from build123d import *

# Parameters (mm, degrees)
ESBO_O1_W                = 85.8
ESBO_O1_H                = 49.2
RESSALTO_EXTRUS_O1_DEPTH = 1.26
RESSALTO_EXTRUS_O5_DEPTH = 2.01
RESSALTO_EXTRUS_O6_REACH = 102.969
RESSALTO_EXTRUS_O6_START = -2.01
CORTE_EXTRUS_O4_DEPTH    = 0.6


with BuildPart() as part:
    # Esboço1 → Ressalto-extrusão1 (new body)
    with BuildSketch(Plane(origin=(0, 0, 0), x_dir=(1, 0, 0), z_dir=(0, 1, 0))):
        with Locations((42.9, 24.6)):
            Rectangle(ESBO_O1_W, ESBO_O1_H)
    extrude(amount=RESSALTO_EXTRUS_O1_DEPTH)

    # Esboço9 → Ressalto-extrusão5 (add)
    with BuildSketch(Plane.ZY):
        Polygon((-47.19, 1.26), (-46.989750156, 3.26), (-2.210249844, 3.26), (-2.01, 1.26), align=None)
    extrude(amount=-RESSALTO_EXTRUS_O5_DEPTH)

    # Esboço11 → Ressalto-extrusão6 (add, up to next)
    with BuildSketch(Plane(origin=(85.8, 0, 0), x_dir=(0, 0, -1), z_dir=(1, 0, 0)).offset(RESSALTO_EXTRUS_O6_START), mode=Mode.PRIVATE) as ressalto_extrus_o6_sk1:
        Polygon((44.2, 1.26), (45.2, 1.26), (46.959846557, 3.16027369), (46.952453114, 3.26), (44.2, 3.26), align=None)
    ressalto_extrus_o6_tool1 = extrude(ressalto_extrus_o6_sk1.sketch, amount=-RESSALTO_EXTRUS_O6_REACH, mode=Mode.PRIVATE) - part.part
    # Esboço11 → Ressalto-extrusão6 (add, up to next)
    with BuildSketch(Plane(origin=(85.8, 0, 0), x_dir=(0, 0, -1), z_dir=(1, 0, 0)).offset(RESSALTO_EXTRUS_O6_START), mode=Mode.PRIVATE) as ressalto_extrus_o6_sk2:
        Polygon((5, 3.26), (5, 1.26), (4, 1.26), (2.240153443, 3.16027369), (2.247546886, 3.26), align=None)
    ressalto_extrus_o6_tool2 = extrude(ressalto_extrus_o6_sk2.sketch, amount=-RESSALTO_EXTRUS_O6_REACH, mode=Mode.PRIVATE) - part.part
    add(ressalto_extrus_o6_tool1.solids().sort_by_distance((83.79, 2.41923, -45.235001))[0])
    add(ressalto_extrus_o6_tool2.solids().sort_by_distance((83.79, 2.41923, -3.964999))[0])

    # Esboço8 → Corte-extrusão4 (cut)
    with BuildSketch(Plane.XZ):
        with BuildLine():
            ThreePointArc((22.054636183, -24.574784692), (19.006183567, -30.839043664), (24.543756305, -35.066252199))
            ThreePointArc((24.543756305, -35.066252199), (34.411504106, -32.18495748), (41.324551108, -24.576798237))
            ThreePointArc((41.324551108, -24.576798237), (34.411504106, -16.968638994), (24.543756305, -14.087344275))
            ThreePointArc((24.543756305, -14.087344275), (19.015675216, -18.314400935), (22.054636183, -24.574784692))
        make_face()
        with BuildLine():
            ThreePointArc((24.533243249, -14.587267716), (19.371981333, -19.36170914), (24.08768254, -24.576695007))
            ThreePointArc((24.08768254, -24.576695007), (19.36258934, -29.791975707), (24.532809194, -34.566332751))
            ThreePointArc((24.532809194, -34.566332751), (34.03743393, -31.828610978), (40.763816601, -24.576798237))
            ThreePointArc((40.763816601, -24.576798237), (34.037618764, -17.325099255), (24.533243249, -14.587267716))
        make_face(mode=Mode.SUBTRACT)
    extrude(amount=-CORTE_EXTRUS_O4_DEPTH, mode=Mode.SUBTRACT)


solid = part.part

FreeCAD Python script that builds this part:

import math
import FreeCAD as App
import Part
import Sketcher
Q = App.Units.Quantity

doc = App.newDocument("Part")
body = doc.addObject("PartDesign::Body", "Body")

# Sketch on XZ plane
sketch1 = doc.addObject("Sketcher::SketchObject", "Sketch")
body.addObject(sketch1)
sketch1.AttachmentSupport = (doc.XZ_Plane, [""])
sketch1.MapMode = "FlatFace"
sketch1.addGeometry(Part.LineSegment(App.Vector(0, -49, 0), App.Vector(0, 0, 0)), False)
sketch1.addGeometry(Part.LineSegment(App.Vector(0, 0, 0), App.Vector(86, 0, 0)), False)
sketch1.addGeometry(Part.LineSegment(App.Vector(86, 0, 0), App.Vector(86, -49, 0)), False)
sketch1.addGeometry(Part.LineSegment(App.Vector(86, -49, 0), App.Vector(0, -49, 0)), False)
sketch1.addConstraint(Sketcher.Constraint("Coincident", 0, 2, 1, 1))
sketch1.addConstraint(Sketcher.Constraint("Coincident", 1, 2, 2, 1))
sketch1.addConstraint(Sketcher.Constraint("Coincident", 2, 2, 3, 1))
sketch1.addConstraint(Sketcher.Constraint("Coincident", 3, 2, 0, 1))
sketch1.addConstraint(Sketcher.Constraint("Vertical", 0))
sketch1.addConstraint(Sketcher.Constraint("Horizontal", 1))
sketch1.addConstraint(Sketcher.Constraint("Vertical", 2))
sketch1.addConstraint(Sketcher.Constraint("Horizontal", 3))
sketch1.addConstraint(Sketcher.Constraint("Coincident", 0, 2, -1, 1))
sketch1.addConstraint(Sketcher.Constraint("DistanceX", 1, 1, 1, 2, Q("85.8 mm")))
sketch1.addConstraint(Sketcher.Constraint("DistanceY", 0, 1, 0, 2, Q("49.2 mm")))
pad1 = doc.addObject("PartDesign::Pad", "Pad")
body.addObject(pad1)
pad1.Profile = sketch1
pad1.Length = 1.26
pad1.Reversed = True

# Sketch on YZ plane
sketch2 = doc.addObject("Sketcher::SketchObject", "Sketch001")
body.addObject(sketch2)
sketch2.AttachmentSupport = (doc.YZ_Plane, [""])
sketch2.MapMode = "FlatFace"
sketch2.addGeometry(Part.LineSegment(App.Vector(3.3, -47, 0), App.Vector(1.3, -47.2, 0)), False)
sketch2.addGeometry(Part.LineSegment(App.Vector(1.3, -47.2, 0), App.Vector(1.3, -2, 0)), False)
sketch2.addGeometry(Part.LineSegment(App.Vector(1.3, -2, 0), App.Vector(3.3, -2.2, 0)), False)
sketch2.addGeometry(Part.LineSegment(App.Vector(3.3, -2.2, 0), App.Vector(3.3, -47, 0)), False)
sketch2.addConstraint(Sketcher.Constraint("Coincident", 0, 2, 1, 1))
sketch2.addConstraint(Sketcher.Constraint("Coincident", 1, 2, 2, 1))
sketch2.addConstraint(Sketcher.Constraint("Coincident", 2, 2, 3, 1))
sketch2.addConstraint(Sketcher.Constraint("Coincident", 3, 2, 0, 1))
sketch2.addConstraint(Sketcher.Constraint("Vertical", 1))
sketch2.addConstraint(Sketcher.Constraint("Vertical", 3))
sketch2.addConstraint(Sketcher.Constraint("Equal", 0, 2))
sketch2.addConstraint(Sketcher.Constraint("DistanceX", 1, 2, 2, 2, Q("2 mm")))
sketch2.addConstraint(Sketcher.Constraint("DistanceY", 1, 1, 1, 2, Q("45.18 mm")))
sketch2.addConstraint(Sketcher.Constraint("Distance", 0, Q("2.01 mm")))
sketch2.addConstraint(Sketcher.Constraint("DistanceX", -1, 1, 0, 2, Q("1.26 mm")))
sketch2.addConstraint(Sketcher.Constraint("DistanceY", 0, 2, -1, 1, Q("47.19 mm")))
pad2 = doc.addObject("PartDesign::Pad", "Pad001")
body.addObject(pad2)
pad2.Profile = sketch2
pad2.Length = 2.01

# Sketch on YZ plane
sketch3 = doc.addObject("Sketcher::SketchObject", "Sketch002")
body.addObject(sketch3)
sketch3.AttachmentSupport = (doc.YZ_Plane, [""])
sketch3.MapMode = "FlatFace"
sketch3.AttachmentOffset = App.Placement(App.Vector(0, 0, 83.79), App.Rotation())
sketch3.addGeometry(Part.LineSegment(App.Vector(1.26, -44.2, 0), App.Vector(1.26, -45.2, 0)), False)
sketch3.addGeometry(Part.LineSegment(App.Vector(1.26, -45.2, 0), App.Vector(3.16, -46.96, 0)), False)
sketch3.addGeometry(Part.LineSegment(App.Vector(3.16, -46.96, 0), App.Vector(3.26, -46.95, 0)), False)
sketch3.addGeometry(Part.LineSegment(App.Vector(3.26, -46.95, 0), App.Vector(3.26, -44.2, 0)), False)
sketch3.addGeometry(Part.LineSegment(App.Vector(3.26, -44.2, 0), App.Vector(1.26, -44.2, 0)), False)
sketch3.addConstraint(Sketcher.Constraint("Coincident", 0, 2, 1, 1))
sketch3.addConstraint(Sketcher.Constraint("Coincident", 1, 2, 2, 1))
sketch3.addConstraint(Sketcher.Constraint("Coincident", 2, 2, 3, 1))
sketch3.addConstraint(Sketcher.Constraint("Coincident", 3, 2, 4, 1))
sketch3.addConstraint(Sketcher.Constraint("Coincident", 4, 2, 0, 1))
sketch3.addConstraint(Sketcher.Constraint("Vertical", 0))
sketch3.addConstraint(Sketcher.Constraint("Vertical", 3))
sketch3.addConstraint(Sketcher.Constraint("Horizontal", 4))
sketch3.addConstraint(Sketcher.Constraint("DistanceX", 4, 2, 4, 1, Q("2 mm")))
sketch3.addConstraint(Sketcher.Constraint("DistanceY", 0, 2, 0, 1, Q("1 mm")))
sketch3.addConstraint(Sketcher.Constraint("Distance", 2, Q("0.1 mm")))
sketch3.addConstraint(Sketcher.Constraint("DistanceY", 0, 2, -1, 1, Q("45.2 mm")))
sketch3.addConstraint(Sketcher.Constraint("Angle", 2, Q("4.24 deg")))
sketch3.addConstraint(Sketcher.Constraint("Distance", 1, Q("2.59 mm")))
sketch3.addConstraint(Sketcher.Constraint("DistanceX", -1, 1, 0, 2, Q("1.26 mm")))
pad3 = doc.addObject("PartDesign::Pad", "Pad002")
body.addObject(pad3)
pad3.Profile = sketch3
pad3.Type = "UpToFirst"
pad3.Reversed = True

# Sketch on YZ plane
sketch4 = doc.addObject("Sketcher::SketchObject", "Sketch003")
body.addObject(sketch4)
sketch4.AttachmentSupport = (doc.YZ_Plane, [""])
sketch4.MapMode = "FlatFace"
sketch4.AttachmentOffset = App.Placement(App.Vector(0, 0, 83.79), App.Rotation())
sketch4.addGeometry(Part.LineSegment(App.Vector(1.26, -5, 0), App.Vector(3.26, -5, 0)), False)
sketch4.addGeometry(Part.LineSegment(App.Vector(3.26, -5, 0), App.Vector(3.26, -2.25, 0)), False)
sketch4.addGeometry(Part.LineSegment(App.Vector(3.26, -2.25, 0), App.Vector(3.16, -2.24, 0)), False)
sketch4.addGeometry(Part.LineSegment(App.Vector(3.16, -2.24, 0), App.Vector(1.26, -4, 0)), False)
sketch4.addGeometry(Part.LineSegment(App.Vector(1.26, -4, 0), App.Vector(1.26, -5, 0)), False)
sketch4.addConstraint(Sketcher.Constraint("Coincident", 0, 2, 1, 1))
sketch4.addConstraint(Sketcher.Constraint("Coincident", 1, 2, 2, 1))
sketch4.addConstraint(Sketcher.Constraint("Coincident", 2, 2, 3, 1))
sketch4.addConstraint(Sketcher.Constraint("Coincident", 3, 2, 4, 1))
sketch4.addConstraint(Sketcher.Constraint("Coincident", 4, 2, 0, 1))
sketch4.addConstraint(Sketcher.Constraint("Horizontal", 0))
sketch4.addConstraint(Sketcher.Constraint("Vertical", 1))
sketch4.addConstraint(Sketcher.Constraint("Vertical", 4))
sketch4.addConstraint(Sketcher.Constraint("DistanceX", 0, 1, 0, 2, Q("2 mm")))
sketch4.addConstraint(Sketcher.Constraint("DistanceY", 4, 2, 4, 1, Q("1 mm")))
sketch4.addConstraint(Sketcher.Constraint("DistanceY", 0, 2, -1, 1, Q("5 mm")))
sketch4.addConstraint(Sketcher.Constraint("Distance", 2, Q("0.1 mm")))
sketch4.addConstraint(Sketcher.Constraint("Angle", 2, Q("175.76 deg")))
sketch4.addConstraint(Sketcher.Constraint("Distance", 3, Q("2.59 mm")))
sketch4.addConstraint(Sketcher.Constraint("DistanceX", -1, 1, 0, 2, Q("3.26 mm")))
pad4 = doc.addObject("PartDesign::Pad", "Pad003")
body.addObject(pad4)
pad4.Profile = sketch4
pad4.Type = "UpToFirst"
pad4.Reversed = True

# Sketch on XZ plane
sketch5 = doc.addObject("Sketcher::SketchObject", "Sketch004")
body.addObject(sketch5)
sketch5.AttachmentSupport = (doc.XZ_Plane, [""])
sketch5.MapMode = "FlatFace"
sketch5.addGeometry(Part.ArcOfCircle(Part.Circle(App.Vector(24, -30, 0), App.Vector(0, 0, 1), 6), math.radians(115), math.radians(272)), False)
sketch5.addGeometry(Part.ArcOfCircle(Part.Circle(App.Vector(24, -16, 0), App.Vector(0, 0, 1), 19), math.radians(-89), math.radians(-27)), False)
sketch5.addGeometry(Part.ArcOfCircle(Part.Circle(App.Vector(24, -33, 0), App.Vector(0, 0, 1), 19), math.radians(27), math.radians(89)), False)
sketch5.addGeometry(Part.ArcOfCircle(Part.Circle(App.Vector(24, -20, 0), App.Vector(0, 0, 1), 6), math.radians(88), math.radians(245)), False)
sketch5.addGeometry(Part.ArcOfCircle(Part.Circle(App.Vector(24, -20, 0), App.Vector(0, 0, 1), 5), math.radians(88), math.radians(267)), False)
sketch5.addGeometry(Part.ArcOfCircle(Part.Circle(App.Vector(24, -33, 0), App.Vector(0, 0, 1), 18), math.radians(27), math.radians(89)), False)
sketch5.addGeometry(Part.ArcOfCircle(Part.Circle(App.Vector(24, -16, 0), App.Vector(0, 0, 1), 18), math.radians(-89), math.radians(-27)), False)
sketch5.addGeometry(Part.ArcOfCircle(Part.Circle(App.Vector(24, -30, 0), App.Vector(0, 0, 1), 5), math.radians(93), math.radians(272)), False)
sketch5.addConstraint(Sketcher.Constraint("Coincident", 0, 2, 1, 1))
sketch5.addConstraint(Sketcher.Constraint("Coincident", 1, 2, 2, 1))
sketch5.addConstraint(Sketcher.Constraint("Coincident", 2, 2, 3, 1))
sketch5.addConstraint(Sketcher.Constraint("Coincident", 3, 2, 0, 1))
sketch5.addConstraint(Sketcher.Constraint("Coincident", 4, 1, 5, 2))
sketch5.addConstraint(Sketcher.Constraint("Coincident", 5, 1, 6, 2))
sketch5.addConstraint(Sketcher.Constraint("Coincident", 6, 1, 7, 2))
sketch5.addConstraint(Sketcher.Constraint("Coincident", 7, 1, 4, 2))
sketch5.addConstraint(Sketcher.Constraint("Coincident", 4, 3, 3, 3))
sketch5.addConstraint(Sketcher.Constraint("Coincident", 5, 3, 2, 3))
sketch5.addConstraint(Sketcher.Constraint("Coincident", 6, 3, 1, 3))
sketch5.addConstraint(Sketcher.Constraint("Coincident", 7, 3, 0, 3))
sketch5.addConstraint(Sketcher.Constraint("Equal", 1, 2))
sketch5.addConstraint(Sketcher.Constraint("Equal", 0, 3))
sketch5.addConstraint(Sketcher.Constraint("Equal", 5, 6))
sketch5.addConstraint(Sketcher.Constraint("Equal", 4, 7))
sketch5.addConstraint(Sketcher.Constraint("Vertical", 1, 3, 2, 3))
sketch5.addConstraint(Sketcher.Constraint("Vertical", 0, 2, 2, 2))
sketch5.addConstraint(Sketcher.Constraint("Radius", 4, Q("5 mm")))
sketch5.addConstraint(Sketcher.Constraint("Radius", 0, Q("5.5 mm")))
sketch5.addConstraint(Sketcher.Constraint("Radius", 1, Q("18.957204 mm")))
sketch5.addConstraint(Sketcher.Constraint("Radius", 5, Q("18.457204 mm")))
sketch5.addConstraint(Sketcher.Constraint("DistanceY", 1, 2, -1, 1, Q("24.576798 mm")))
sketch5.addConstraint(Sketcher.Constraint("DistanceY", 0, 3, 3, 3, Q("9.984899 mm")))
sketch5.addConstraint(Sketcher.Constraint("DistanceX", 4, 3, 5, 1, Q("16.396801 mm")))
sketch5.addConstraint(Sketcher.Constraint("DistanceY", 1, 3, -1, 1, Q("16.109908 mm")))
sketch5.addConstraint(Sketcher.Constraint("DistanceX", -1, 1, 1, 2, Q("41.324551 mm")))
sketch5.addConstraint(Sketcher.Constraint("DistanceX", -1, 1, 6, 1, Q("24.532809 mm")))
pocket1 = doc.addObject("PartDesign::Pocket", "Pocket")
body.addObject(pocket1)
pocket1.Profile = sketch5
pocket1.Length = 0.6

doc.recompute()
